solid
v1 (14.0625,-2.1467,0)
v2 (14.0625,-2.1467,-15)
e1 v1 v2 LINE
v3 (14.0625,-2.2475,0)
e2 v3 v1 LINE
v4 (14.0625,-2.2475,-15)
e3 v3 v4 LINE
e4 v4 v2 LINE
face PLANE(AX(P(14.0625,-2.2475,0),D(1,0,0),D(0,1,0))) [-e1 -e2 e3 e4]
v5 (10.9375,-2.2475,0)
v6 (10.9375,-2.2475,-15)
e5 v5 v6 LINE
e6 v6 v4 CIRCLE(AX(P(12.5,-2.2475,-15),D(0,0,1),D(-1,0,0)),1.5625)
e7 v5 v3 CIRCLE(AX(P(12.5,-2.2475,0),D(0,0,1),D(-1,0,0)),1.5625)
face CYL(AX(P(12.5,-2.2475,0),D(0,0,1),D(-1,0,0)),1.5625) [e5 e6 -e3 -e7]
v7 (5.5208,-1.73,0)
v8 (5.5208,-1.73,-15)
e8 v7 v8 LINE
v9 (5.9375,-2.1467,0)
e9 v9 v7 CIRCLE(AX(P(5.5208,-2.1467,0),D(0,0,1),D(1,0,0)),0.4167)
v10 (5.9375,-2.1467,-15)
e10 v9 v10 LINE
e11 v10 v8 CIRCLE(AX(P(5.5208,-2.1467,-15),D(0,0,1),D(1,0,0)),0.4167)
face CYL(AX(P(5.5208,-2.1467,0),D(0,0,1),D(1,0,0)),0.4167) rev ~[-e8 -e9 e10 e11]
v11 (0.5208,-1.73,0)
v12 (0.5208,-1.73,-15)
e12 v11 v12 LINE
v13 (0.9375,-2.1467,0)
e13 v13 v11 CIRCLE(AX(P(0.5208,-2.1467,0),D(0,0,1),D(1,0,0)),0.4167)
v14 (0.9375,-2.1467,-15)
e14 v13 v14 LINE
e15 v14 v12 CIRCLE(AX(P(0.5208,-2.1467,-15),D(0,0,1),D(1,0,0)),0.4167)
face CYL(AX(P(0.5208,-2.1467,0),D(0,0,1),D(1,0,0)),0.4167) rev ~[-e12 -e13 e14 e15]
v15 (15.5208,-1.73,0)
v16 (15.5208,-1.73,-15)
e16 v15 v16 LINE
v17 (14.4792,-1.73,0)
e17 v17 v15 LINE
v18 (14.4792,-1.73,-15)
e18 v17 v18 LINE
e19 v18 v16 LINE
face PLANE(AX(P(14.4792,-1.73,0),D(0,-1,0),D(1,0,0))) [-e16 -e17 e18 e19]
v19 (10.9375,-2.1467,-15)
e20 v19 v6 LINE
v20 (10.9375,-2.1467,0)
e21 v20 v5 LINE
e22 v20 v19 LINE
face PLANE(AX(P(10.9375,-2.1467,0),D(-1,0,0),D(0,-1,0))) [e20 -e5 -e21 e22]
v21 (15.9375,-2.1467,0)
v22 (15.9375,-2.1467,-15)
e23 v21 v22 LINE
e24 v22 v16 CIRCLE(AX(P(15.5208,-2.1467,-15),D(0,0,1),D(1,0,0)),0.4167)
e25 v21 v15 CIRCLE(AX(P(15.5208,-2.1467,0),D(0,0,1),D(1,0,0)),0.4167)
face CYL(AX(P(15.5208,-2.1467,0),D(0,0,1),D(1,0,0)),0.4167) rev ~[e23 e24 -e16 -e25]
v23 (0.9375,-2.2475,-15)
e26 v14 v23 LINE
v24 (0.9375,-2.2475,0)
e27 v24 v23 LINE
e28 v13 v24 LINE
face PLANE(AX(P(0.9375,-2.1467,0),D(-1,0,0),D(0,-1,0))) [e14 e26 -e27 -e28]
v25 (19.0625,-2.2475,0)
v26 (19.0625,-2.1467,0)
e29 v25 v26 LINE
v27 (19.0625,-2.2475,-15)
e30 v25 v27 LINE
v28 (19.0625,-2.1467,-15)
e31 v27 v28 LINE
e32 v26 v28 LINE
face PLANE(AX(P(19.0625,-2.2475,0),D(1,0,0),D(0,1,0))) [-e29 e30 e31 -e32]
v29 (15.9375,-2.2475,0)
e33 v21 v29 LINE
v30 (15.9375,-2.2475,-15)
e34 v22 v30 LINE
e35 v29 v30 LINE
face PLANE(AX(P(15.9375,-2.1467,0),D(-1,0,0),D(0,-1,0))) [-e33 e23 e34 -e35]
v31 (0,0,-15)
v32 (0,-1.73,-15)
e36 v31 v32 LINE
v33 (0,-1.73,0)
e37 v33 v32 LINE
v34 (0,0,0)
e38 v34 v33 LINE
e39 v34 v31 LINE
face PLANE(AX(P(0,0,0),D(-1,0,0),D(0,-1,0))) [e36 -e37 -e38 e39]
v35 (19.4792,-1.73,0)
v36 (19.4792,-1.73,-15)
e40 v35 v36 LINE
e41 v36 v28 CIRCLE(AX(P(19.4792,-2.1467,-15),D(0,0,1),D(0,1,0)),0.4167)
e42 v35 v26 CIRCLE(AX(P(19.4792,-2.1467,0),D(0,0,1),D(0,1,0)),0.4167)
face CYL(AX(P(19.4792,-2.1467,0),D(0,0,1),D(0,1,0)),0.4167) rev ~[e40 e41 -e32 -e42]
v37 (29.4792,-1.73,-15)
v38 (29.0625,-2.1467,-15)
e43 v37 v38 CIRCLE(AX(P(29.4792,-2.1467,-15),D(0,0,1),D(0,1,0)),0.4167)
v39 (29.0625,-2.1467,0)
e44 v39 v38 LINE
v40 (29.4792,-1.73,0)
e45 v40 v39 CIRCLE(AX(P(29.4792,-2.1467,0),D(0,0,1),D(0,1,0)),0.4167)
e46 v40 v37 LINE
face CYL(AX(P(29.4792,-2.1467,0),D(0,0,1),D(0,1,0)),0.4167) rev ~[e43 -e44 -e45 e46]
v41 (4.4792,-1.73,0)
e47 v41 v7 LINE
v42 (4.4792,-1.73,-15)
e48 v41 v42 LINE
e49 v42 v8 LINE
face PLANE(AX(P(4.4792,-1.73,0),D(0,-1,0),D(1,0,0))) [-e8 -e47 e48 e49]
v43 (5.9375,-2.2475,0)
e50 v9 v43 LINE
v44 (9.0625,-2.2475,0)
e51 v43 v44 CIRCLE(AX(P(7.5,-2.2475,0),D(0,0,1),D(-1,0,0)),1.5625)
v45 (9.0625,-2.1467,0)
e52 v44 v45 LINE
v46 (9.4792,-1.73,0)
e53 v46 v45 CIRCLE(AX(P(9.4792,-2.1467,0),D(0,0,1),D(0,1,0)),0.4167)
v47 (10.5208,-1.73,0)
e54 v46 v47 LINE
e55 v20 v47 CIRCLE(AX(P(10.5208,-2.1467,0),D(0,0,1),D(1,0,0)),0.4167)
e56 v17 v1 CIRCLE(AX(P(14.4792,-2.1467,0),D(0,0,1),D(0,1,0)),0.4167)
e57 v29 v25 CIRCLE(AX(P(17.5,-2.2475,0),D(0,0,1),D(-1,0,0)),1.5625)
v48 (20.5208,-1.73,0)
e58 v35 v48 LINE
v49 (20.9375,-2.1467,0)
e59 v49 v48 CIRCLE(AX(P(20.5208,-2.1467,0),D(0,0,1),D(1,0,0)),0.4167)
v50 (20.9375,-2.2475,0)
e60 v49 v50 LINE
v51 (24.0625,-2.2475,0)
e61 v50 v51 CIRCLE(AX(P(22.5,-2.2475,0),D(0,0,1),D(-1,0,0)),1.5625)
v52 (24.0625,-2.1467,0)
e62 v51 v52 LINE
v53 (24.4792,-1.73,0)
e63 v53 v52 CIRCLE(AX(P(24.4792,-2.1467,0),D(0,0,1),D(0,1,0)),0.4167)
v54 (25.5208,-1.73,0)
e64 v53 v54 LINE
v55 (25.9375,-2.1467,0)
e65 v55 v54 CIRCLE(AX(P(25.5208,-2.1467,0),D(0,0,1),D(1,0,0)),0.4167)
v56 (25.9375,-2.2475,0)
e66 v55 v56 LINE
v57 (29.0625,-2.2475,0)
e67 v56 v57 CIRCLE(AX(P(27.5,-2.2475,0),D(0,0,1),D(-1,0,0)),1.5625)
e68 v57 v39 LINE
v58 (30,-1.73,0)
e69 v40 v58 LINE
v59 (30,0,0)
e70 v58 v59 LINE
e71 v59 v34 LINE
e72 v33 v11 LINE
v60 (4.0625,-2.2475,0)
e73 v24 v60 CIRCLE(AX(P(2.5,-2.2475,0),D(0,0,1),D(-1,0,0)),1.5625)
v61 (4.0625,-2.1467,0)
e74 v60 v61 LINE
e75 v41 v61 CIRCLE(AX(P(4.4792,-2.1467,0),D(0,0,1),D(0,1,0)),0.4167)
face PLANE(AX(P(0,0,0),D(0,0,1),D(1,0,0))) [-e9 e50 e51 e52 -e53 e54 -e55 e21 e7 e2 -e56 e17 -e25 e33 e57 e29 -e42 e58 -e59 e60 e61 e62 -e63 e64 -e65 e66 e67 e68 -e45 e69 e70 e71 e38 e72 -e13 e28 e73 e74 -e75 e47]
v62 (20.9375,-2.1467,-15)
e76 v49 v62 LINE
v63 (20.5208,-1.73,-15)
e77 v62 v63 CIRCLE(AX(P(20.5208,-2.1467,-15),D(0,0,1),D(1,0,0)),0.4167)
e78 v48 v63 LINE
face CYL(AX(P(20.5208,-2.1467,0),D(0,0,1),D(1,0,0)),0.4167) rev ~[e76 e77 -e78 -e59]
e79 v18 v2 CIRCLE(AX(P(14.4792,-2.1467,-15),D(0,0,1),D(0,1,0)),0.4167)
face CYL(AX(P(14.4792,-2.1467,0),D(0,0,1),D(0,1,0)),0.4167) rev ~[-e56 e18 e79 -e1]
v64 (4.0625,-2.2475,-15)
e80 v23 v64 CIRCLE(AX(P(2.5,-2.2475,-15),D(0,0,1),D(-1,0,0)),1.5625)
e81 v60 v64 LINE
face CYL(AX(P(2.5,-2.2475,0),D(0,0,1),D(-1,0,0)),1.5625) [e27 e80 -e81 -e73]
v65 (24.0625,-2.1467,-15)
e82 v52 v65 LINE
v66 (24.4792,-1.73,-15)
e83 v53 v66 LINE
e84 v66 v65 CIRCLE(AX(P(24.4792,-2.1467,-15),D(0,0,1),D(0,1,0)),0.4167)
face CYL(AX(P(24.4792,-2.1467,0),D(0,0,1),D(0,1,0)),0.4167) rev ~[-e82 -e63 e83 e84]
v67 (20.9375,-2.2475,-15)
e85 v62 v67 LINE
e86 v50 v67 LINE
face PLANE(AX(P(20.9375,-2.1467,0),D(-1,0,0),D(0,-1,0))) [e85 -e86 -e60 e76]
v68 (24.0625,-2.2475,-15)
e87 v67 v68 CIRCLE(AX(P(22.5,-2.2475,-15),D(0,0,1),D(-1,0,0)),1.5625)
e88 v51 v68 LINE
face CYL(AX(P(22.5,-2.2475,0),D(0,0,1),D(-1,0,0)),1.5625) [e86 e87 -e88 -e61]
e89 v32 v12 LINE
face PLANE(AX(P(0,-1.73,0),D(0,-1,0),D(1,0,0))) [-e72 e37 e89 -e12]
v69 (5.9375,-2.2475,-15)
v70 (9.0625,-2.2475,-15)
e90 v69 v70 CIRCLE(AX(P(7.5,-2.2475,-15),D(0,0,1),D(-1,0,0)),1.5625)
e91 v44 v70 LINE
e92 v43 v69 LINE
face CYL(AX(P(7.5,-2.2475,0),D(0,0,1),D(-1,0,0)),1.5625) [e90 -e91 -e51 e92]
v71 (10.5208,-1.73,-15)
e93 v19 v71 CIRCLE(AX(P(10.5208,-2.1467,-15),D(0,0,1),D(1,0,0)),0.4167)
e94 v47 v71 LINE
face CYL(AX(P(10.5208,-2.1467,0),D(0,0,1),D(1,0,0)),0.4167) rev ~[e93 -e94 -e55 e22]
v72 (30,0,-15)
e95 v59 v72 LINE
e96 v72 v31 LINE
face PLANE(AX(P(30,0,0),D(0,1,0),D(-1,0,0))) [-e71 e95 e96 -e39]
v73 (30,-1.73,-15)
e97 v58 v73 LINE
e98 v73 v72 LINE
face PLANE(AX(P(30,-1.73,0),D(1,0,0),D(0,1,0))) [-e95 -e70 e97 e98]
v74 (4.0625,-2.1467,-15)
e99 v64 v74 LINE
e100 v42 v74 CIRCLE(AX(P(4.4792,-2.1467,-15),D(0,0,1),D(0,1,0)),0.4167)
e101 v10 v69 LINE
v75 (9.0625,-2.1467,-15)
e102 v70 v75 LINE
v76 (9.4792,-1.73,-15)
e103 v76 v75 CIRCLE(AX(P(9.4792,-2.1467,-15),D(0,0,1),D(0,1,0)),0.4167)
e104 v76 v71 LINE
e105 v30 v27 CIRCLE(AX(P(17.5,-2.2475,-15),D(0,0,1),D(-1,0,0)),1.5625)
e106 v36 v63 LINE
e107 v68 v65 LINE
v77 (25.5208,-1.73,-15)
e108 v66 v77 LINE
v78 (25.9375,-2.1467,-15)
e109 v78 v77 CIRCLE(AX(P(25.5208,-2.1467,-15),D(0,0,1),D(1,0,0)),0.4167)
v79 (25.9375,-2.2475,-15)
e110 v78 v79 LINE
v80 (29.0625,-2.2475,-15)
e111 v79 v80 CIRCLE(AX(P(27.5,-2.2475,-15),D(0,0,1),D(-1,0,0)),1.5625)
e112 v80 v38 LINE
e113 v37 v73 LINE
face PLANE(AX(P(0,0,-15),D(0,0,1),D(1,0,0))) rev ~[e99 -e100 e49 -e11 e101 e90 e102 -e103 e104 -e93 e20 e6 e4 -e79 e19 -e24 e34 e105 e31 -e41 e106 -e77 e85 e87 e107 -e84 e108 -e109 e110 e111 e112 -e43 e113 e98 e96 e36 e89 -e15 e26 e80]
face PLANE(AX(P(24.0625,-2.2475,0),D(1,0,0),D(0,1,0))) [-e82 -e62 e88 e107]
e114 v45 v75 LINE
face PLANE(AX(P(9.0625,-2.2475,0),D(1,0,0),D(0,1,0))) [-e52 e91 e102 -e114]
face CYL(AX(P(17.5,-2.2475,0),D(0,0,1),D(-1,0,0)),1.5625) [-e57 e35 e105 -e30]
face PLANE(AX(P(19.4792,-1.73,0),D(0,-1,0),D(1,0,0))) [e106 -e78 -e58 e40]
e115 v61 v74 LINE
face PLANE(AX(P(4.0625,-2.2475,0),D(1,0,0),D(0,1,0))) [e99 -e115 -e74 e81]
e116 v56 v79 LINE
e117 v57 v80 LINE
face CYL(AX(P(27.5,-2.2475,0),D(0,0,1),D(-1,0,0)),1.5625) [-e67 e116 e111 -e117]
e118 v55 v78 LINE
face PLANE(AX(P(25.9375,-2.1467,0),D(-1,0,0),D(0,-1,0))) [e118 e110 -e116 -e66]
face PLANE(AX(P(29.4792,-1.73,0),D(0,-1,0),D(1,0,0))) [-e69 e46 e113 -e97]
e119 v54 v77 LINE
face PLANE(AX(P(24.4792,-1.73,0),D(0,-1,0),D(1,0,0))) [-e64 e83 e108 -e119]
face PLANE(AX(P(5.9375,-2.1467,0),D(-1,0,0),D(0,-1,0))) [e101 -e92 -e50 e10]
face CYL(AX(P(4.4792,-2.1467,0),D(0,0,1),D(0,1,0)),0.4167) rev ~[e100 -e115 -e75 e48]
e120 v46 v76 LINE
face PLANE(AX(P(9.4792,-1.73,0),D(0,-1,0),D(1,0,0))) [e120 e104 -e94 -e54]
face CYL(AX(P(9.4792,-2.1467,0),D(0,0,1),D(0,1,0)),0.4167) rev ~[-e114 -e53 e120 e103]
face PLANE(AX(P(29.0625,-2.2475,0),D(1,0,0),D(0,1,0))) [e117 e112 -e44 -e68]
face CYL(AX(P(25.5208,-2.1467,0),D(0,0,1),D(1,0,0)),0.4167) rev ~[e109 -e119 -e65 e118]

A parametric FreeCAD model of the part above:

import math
import FreeCAD as App
import Part
import Sketcher

V = App.Vector

doc = App.newDocument("Part")
body = doc.addObject("PartDesign::Body", "Body")

# Sketch on XY plane
sketch1 = body.newObject("Sketcher::SketchObject", "Sketch")
sketch1.AttachmentSupport = (doc.getObject("XY_Plane"), [""])
sketch1.MapMode = "FlatFace"
sketch1.addGeometry(Part.ArcOfCircle(Part.Circle(V(0.5208, -2.1467, 0), V(0, 0, 1), 0.4167), math.radians(0), math.radians(90)), False)
sketch1.addGeometry(Part.LineSegment(V(0.9375, -2.1467, 0), V(0.9375, -2.2475, 0)), False)
sketch1.addGeometry(Part.ArcOfCircle(Part.Circle(V(2.5, -2.2475, 0), V(0, 0, 1), 1.5625), math.radians(180), math.radians(360)), False)
sketch1.addGeometry(Part.LineSegment(V(4.0625, -2.2475, 0), V(4.0625, -2.1467, 0)), False)
sketch1.addGeometry(Part.ArcOfCircle(Part.Circle(V(4.4792, -2.1467, 0), V(0, 0, 1), 0.4167), math.radians(90), math.radians(180)), False)
sketch1.addGeometry(Part.LineSegment(V(4.4792, -1.73, 0), V(5.5208, -1.73, 0)), False)
sketch1.addGeometry(Part.ArcOfCircle(Part.Circle(V(5.5208, -2.1467, 0), V(0, 0, 1), 0.4167), math.radians(0), math.radians(90)), False)
sketch1.addGeometry(Part.LineSegment(V(5.9375, -2.1467, 0), V(5.9375, -2.2475, 0)), False)
sketch1.addGeometry(Part.ArcOfCircle(Part.Circle(V(7.5, -2.2475, 0), V(0, 0, 1), 1.5625), math.radians(180), math.radians(360)), False)
sketch1.addGeometry(Part.LineSegment(V(9.0625, -2.2475, 0), V(9.0625, -2.1467, 0)), False)
sketch1.addGeometry(Part.ArcOfCircle(Part.Circle(V(9.4792, -2.1467, 0), V(0, 0, 1), 0.4167), math.radians(90), math.radians(180)), False)
sketch1.addGeometry(Part.LineSegment(V(9.4792, -1.73, 0), V(10.5208, -1.73, 0)), False)
sketch1.addGeometry(Part.ArcOfCircle(Part.Circle(V(10.5208, -2.1467, 0), V(0, 0, 1), 0.4167), math.radians(0), math.radians(90)), False)
sketch1.addGeometry(Part.LineSegment(V(10.9375, -2.1467, 0), V(10.9375, -2.2475, 0)), False)
sketch1.addGeometry(Part.ArcOfCircle(Part.Circle(V(12.5, -2.2475, 0), V(0, 0, 1), 1.5625), math.radians(180), math.radians(360)), False)
sketch1.addGeometry(Part.LineSegment(V(14.0625, -2.2475, 0), V(14.0625, -2.1467, 0)), False)
sketch1.addGeometry(Part.ArcOfCircle(Part.Circle(V(14.4792, -2.1467, 0), V(0, 0, 1), 0.4167), math.radians(90), math.radians(180)), False)
sketch1.addGeometry(Part.LineSegment(V(14.4792, -1.73, 0), V(15.5208, -1.73, 0)), False)
sketch1.addGeometry(Part.ArcOfCircle(Part.Circle(V(15.5208, -2.1467, 0), V(0, 0, 1), 0.4167), math.radians(0), math.radians(90)), False)
sketch1.addGeometry(Part.LineSegment(V(15.9375, -2.1467, 0), V(15.9375, -2.2475, 0)), False)
sketch1.addGeometry(Part.ArcOfCircle(Part.Circle(V(17.5, -2.2475, 0), V(0, 0, 1), 1.5625), math.radians(180), math.radians(360)), False)
sketch1.addGeometry(Part.LineSegment(V(19.0625, -2.2475, 0), V(19.0625, -2.1467, 0)), False)
sketch1.addGeometry(Part.ArcOfCircle(Part.Circle(V(19.4792, -2.1467, 0), V(0, 0, 1), 0.4167), math.radians(90), math.radians(180)), False)
sketch1.addGeometry(Part.LineSegment(V(19.4792, -1.73, 0), V(20.5208, -1.73, 0)), False)
sketch1.addGeometry(Part.ArcOfCircle(Part.Circle(V(20.5208, -2.1467, 0), V(0, 0, 1), 0.4167), math.radians(0), math.radians(90)), False)
sketch1.addGeometry(Part.LineSegment(V(20.9375, -2.1467, 0), V(20.9375, -2.2475, 0)), False)
sketch1.addGeometry(Part.ArcOfCircle(Part.Circle(V(22.5, -2.2475, 0), V(0, 0, 1), 1.5625), math.radians(180), math.radians(360)), False)
sketch1.addGeometry(Part.LineSegment(V(24.0625, -2.2475, 0), V(24.0625, -2.1467, 0)), False)
sketch1.addGeometry(Part.ArcOfCircle(Part.Circle(V(24.4792, -2.1467, 0), V(0, 0, 1), 0.4167), math.radians(90), math.radians(180)), False)
sketch1.addGeometry(Part.LineSegment(V(24.4792, -1.73, 0), V(25.5208, -1.73, 0)), False)
sketch1.addGeometry(Part.ArcOfCircle(Part.Circle(V(25.5208, -2.1467, 0), V(0, 0, 1), 0.4167), math.radians(0), math.radians(90)), False)
sketch1.addGeometry(Part.LineSegment(V(25.9375, -2.1467, 0), V(25.9375, -2.2475, 0)), False)
sketch1.addGeometry(Part.ArcOfCircle(Part.Circle(V(27.5, -2.2475, 0), V(0, 0, 1), 1.5625), math.radians(180), math.radians(360)), False)
sketch1.addGeometry(Part.LineSegment(V(29.0625, -2.2475, 0), V(29.0625, -2.1467, 0)), False)
sketch1.addGeometry(Part.ArcOfCircle(Part.Circle(V(29.4792, -2.1467, 0), V(0, 0, 1), 0.4167), math.radians(90), math.radians(180)), False)
sketch1.addGeometry(Part.LineSegment(V(29.4792, -1.73, 0), V(30, -1.73, 0)), False)
sketch1.addGeometry(Part.LineSegment(V(30, -1.73, 0), V(30, 0, 0)), False)
sketch1.addGeometry(Part.LineSegment(V(30, 0, 0), V(0, 0, 0)), False)
sketch1.addGeometry(Part.LineSegment(V(0, 0, 0), V(0, -1.73, 0)), False)
sketch1.addGeometry(Part.LineSegment(V(0, -1.73, 0), V(0.5208, -1.73, 0)), False)
sketch1.addConstraint(Sketcher.Constraint("Tangent", 0, 1, 1, 1))
sketch1.addConstraint(Sketcher.Constraint("Tangent", 1, 2, 2, 1))
sketch1.addConstraint(Sketcher.Constraint("Tangent", 2, 2, 3, 1))
sketch1.addConstraint(Sketcher.Constraint("Tangent", 3, 2, 4, 2))
sketch1.addConstraint(Sketcher.Constraint("Tangent", 4, 1, 5, 1))
sketch1.addConstraint(Sketcher.Constraint("Tangent", 5, 2, 6, 2))
sketch1.addConstraint(Sketcher.Constraint("Tangent", 6, 1, 7, 1))
sketch1.addConstraint(Sketcher.Constraint("Tangent", 7, 2, 8, 1))
sketch1.addConstraint(Sketcher.Constraint("Tangent", 8, 2, 9, 1))
sketch1.addConstraint(Sketcher.Constraint("Tangent", 9, 2, 10, 2))
sketch1.addConstraint(Sketcher.Constraint("Tangent", 10, 1, 11, 1))
sketch1.addConstraint(Sketcher.Constraint("Tangent", 11, 2, 12, 2))
sketch1.addConstraint(Sketcher.Constraint("Tangent", 12, 1, 13, 1))
sketch1.addConstraint(Sketcher.Constraint("Tangent", 13, 2, 14, 1))
sketch1.addConstraint(Sketcher.Constraint("Tangent", 14, 2, 15, 1))
sketch1.addConstraint(Sketcher.Constraint("Tangent", 15, 2, 16, 2))
sketch1.addConstraint(Sketcher.Constraint("Tangent", 16, 1, 17, 1))
sketch1.addConstraint(Sketcher.Constraint("Tangent", 17, 2, 18, 2))
sketch1.addConstraint(Sketcher.Constraint("Tangent", 18, 1, 19, 1))
sketch1.addConstraint(Sketcher.Constraint("Tangent", 19, 2, 20, 1))
sketch1.addConstraint(Sketcher.Constraint("Tangent", 20, 2, 21, 1))
sketch1.addConstraint(Sketcher.Constraint("Tangent", 21, 2, 22, 2))
sketch1.addConstraint(Sketcher.Constraint("Tangent", 22, 1, 23, 1))
sketch1.addConstraint(Sketcher.Constraint("Tangent", 23, 2, 24, 2))
sketch1.addConstraint(Sketcher.Constraint("Tangent", 24, 1, 25, 1))
sketch1.addConstraint(Sketcher.Constraint("Tangent", 25, 2, 26, 1))
sketch1.addConstraint(Sketcher.Constraint("Tangent", 26, 2, 27, 1))
sketch1.addConstraint(Sketcher.Constraint("Tangent", 27, 2, 28, 2))
sketch1.addConstraint(Sketcher.Constraint("Tangent", 28, 1, 29, 1))
sketch1.addConstraint(Sketcher.Constraint("Tangent", 29, 2, 30, 2))
sketch1.addConstraint(Sketcher.Constraint("Tangent", 30, 1, 31, 1))
sketch1.addConstraint(Sketcher.Constraint("Tangent", 31, 2, 32, 1))
sketch1.addConstraint(Sketcher.Constraint("Tangent", 32, 2, 33, 1))
sketch1.addConstraint(Sketcher.Constraint("Tangent", 33, 2, 34, 2))
sketch1.addConstraint(Sketcher.Constraint("Tangent", 34, 1, 35, 1))
sketch1.addConstraint(Sketcher.Constraint("Coincident", 35, 2, 36, 1))
sketch1.addConstraint(Sketcher.Constraint("Coincident", 36, 2, 37, 1))
sketch1.addConstraint(Sketcher.Constraint("Coincident", 37, 2, 38, 1))
sketch1.addConstraint(Sketcher.Constraint("Coincident", 38, 2, 39, 1))
sketch1.addConstraint(Sketcher.Constraint("Tangent", 39, 2, 0, 2))
sketch1.addConstraint(Sketcher.Constraint("Vertical", 1))
sketch1.addConstraint(Sketcher.Constraint("Vertical", 3))
sketch1.addConstraint(Sketcher.Constraint("Horizontal", 5))
sketch1.addConstraint(Sketcher.Constraint("Vertical", 7))
sketch1.addConstraint(Sketcher.Constraint("Vertical", 9))
sketch1.addConstraint(Sketcher.Constraint("Horizontal", 11))
sketch1.addConstraint(Sketcher.Constraint("Vertical", 13))
sketch1.addConstraint(Sketcher.Constraint("Vertical", 15))
sketch1.addConstraint(Sketcher.Constraint("Horizontal", 17))
sketch1.addConstraint(Sketcher.Constraint("Vertical", 19))
sketch1.addConstraint(Sketcher.Constraint("Vertical", 21))
sketch1.addConstraint(Sketcher.Constraint("Horizontal", 23))
sketch1.addConstraint(Sketcher.Constraint("Vertical", 25))
sketch1.addConstraint(Sketcher.Constraint("Vertical", 27))
sketch1.addConstraint(Sketcher.Constraint("Horizontal", 29))
sketch1.addConstraint(Sketcher.Constraint("Vertical", 31))
sketch1.addConstraint(Sketcher.Constraint("Vertical", 33))
sketch1.addConstraint(Sketcher.Constraint("Horizontal", 35))
sketch1.addConstraint(Sketcher.Constraint("Vertical", 36))
sketch1.addConstraint(Sketcher.Constraint("Horizontal", 37))
sketch1.addConstraint(Sketcher.Constraint("Vertical", 38))
sketch1.addConstraint(Sketcher.Constraint("Horizontal", 39))
sketch1.addConstraint(Sketcher.Constraint("Coincident", 37, 2, -1, 1))
sketch1.addConstraint(Sketcher.Constraint("Equal", 0, 4))
sketch1.addConstraint(Sketcher.Constraint("Equal", 4, 6))
sketch1.addConstraint(Sketcher.Constraint("Equal", 2, 8))
sketch1.addConstraint(Sketcher.Constraint("Equal", 6, 10))
sketch1.addConstraint(Sketcher.Constraint("Equal", 10, 12))
sketch1.addConstraint(Sketcher.Constraint("Equal", 8, 14))
sketch1.addConstraint(Sketcher.Constraint("Equal", 12, 16))
sketch1.addConstraint(Sketcher.Constraint("Equal", 16, 18))
sketch1.addConstraint(Sketcher.Constraint("Equal", 14, 20))
sketch1.addConstraint(Sketcher.Constraint("Equal", 18, 22))
sketch1.addConstraint(Sketcher.Constraint("Equal", 22, 24))
sketch1.addConstraint(Sketcher.Constraint("Equal", 20, 26))
sketch1.addConstraint(Sketcher.Constraint("Equal", 24, 28))
sketch1.addConstraint(Sketcher.Constraint("Equal", 28, 30))
sketch1.addConstraint(Sketcher.Constraint("Equal", 26, 32))
sketch1.addConstraint(Sketcher.Constraint("Equal", 30, 34))
sketch1.addConstraint(Sketcher.Constraint("Horizontal", 0, 3, 4, 3))
sketch1.addConstraint(Sketcher.Constraint("Horizontal", 2, 3, 8, 3))
sketch1.addConstraint(Sketcher.Constraint("Horizontal", 6, 3, 10, 3))
sketch1.addConstraint(Sketcher.Constraint("Horizontal", 8, 3, 14, 3))
sketch1.addConstraint(Sketcher.Constraint("Horizontal", 12, 3, 16, 3))
sketch1.addConstraint(Sketcher.Constraint("Horizontal", 14, 3, 20, 3))
sketch1.addConstraint(Sketcher.Constraint("Horizontal", 18, 3, 22, 3))
sketch1.addConstraint(Sketcher.Constraint("Horizontal", 20, 3, 26, 3))
sketch1.addConstraint(Sketcher.Constraint("Horizontal", 24, 3, 28, 3))
sketch1.addConstraint(Sketcher.Constraint("Horizontal", 26, 3, 32, 3))
sketch1.addConstraint(Sketcher.Constraint("Horizontal", 30, 3, 34, 3))
sketch1.addConstraint(Sketcher.Constraint("Equal", 5, 11))
sketch1.addConstraint(Sketcher.Constraint("Equal", 11, 17))
sketch1.addConstraint(Sketcher.Constraint("Equal", 17, 23))
sketch1.addConstraint(Sketcher.Constraint("Equal", 23, 29))
sketch1.addConstraint(Sketcher.Constraint("Equal", 35, 39))
sketch1.addConstraint(Sketcher.Constraint("DistanceX", 37, 2, 37, 1, 30.0))
sketch1.addConstraint(Sketcher.Constraint("DistanceX", 0, 3, 6, 3, 5.0))
sketch1.addConstraint(Sketcher.Constraint("DistanceY", 36, 1, 36, 2, 1.73))
sketch1.addConstraint(Sketcher.Constraint("Radius", 0, 0.4167))
sketch1.addConstraint(Sketcher.Constraint("Radius", 2, 1.5625))
sketch1.addConstraint(Sketcher.Constraint("DistanceY", 1, 2, 1, 1, 0.1008))
pad1 = body.newObject("PartDesign::Pad", "Pad")
pad1.Profile = sketch1
pad1.Length = 15
pad1.Reversed = True

doc.recompute()
